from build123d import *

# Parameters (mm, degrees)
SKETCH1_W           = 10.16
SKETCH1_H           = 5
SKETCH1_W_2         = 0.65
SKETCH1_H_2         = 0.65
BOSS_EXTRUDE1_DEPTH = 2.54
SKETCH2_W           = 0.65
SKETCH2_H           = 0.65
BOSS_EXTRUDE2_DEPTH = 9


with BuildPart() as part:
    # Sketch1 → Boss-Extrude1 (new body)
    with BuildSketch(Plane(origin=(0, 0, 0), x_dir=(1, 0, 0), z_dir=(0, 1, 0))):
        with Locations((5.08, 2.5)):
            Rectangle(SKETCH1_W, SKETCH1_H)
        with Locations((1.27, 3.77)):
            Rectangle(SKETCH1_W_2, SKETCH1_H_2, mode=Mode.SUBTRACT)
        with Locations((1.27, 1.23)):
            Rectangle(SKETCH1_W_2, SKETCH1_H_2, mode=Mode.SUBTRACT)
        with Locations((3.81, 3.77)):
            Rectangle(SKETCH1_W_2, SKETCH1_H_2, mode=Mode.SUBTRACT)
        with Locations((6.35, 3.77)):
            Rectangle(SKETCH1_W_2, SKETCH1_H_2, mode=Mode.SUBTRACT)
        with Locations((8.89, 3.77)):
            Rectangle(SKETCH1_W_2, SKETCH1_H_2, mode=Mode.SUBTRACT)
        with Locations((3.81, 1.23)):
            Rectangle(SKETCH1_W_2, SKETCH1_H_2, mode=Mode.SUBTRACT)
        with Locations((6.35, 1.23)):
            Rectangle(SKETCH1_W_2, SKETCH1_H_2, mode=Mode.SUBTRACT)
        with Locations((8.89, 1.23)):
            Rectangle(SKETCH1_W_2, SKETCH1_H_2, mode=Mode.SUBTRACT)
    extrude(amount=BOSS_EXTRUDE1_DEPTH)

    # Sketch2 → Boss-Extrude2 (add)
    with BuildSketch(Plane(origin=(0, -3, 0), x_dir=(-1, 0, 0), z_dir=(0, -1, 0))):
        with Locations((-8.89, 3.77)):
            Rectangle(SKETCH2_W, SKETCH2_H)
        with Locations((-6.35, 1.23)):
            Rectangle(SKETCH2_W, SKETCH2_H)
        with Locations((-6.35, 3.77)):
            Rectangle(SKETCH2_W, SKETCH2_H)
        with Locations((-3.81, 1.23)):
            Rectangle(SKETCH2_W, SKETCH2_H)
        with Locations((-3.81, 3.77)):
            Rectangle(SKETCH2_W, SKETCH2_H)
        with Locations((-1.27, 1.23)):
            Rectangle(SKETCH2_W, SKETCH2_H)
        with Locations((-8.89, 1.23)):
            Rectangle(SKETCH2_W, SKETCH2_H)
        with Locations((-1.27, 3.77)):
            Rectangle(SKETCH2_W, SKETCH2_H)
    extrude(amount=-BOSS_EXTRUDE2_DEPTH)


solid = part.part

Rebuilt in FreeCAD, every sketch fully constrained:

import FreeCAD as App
import Part
import Sketcher
from FreeCAD import Vector


def add_polygon(sketch, points):
    """Adds a closed chain of lines whose ends are joined by coincident constraints."""
    first, n = sketch.GeometryCount, len(points)
    for a, b in zip(points, points[1:] + points[:1]):
        sketch.addGeometry(Part.LineSegment(App.Vector(*a, 0), App.Vector(*b, 0)), False)
    for i in range(n):
        sketch.addConstraint(Sketcher.Constraint("Coincident", first + i, 2, first + (i + 1) % n, 1))

doc = App.newDocument("Part")
params = doc.addObject("Spreadsheet::Sheet", "Params")
for row, (alias, value) in enumerate([
    ("sketch1_height", "5 mm"),
    ("sketch1_width", "10.16 mm"),
    ("sketch1_width2", "0.65 mm"),
    ("pad1_length", "2.54 mm"),
    ("sketch2_width", "0.65 mm"),
    ("pad2_length", "9 mm"),
], start=1):
    params.set(f"A{row}", alias)
    params.set(f"B{row}", "=" + value)
    params.setAlias(f"B{row}", alias)

body = doc.addObject("PartDesign::Body", "Body")

# Sketch on XZ plane
sketch1 = body.newObject("Sketcher::SketchObject", "Sketch")
sketch1.AttachmentSupport = (doc.getObject("XZ_Plane"), [""])
sketch1.MapMode = "FlatFace"
add_polygon(sketch1, [(0, -5), (0, 0), (10.2, 0), (10.2, -5)])  # lines 0-3
add_polygon(sketch1, [(1.6, -0.9), (0.9, -0.9), (0.9, -1.6), (1.6, -1.6)])  # lines 4-7
add_polygon(sketch1, [(4.1, -0.9), (3.5, -0.9), (3.5, -1.6), (4.1, -1.6)])  # lines 8-11
add_polygon(sketch1, [(6.7, -0.9), (6, -0.9), (6, -1.6), (6.7, -1.6)])  # lines 12-15
add_polygon(sketch1, [(9.2, -0.9), (8.6, -0.9), (8.6, -1.6), (9.2, -1.6)])  # lines 16-19
add_polygon(sketch1, [(1.6, -3.4), (0.9, -3.4), (0.9, -4.1), (1.6, -4.1)])  # lines 20-23
add_polygon(sketch1, [(4.1, -3.4), (3.5, -3.4), (3.5, -4.1), (4.1, -4.1)])  # lines 24-27
add_polygon(sketch1, [(6.7, -3.4), (6, -3.4), (6, -4.1), (6.7, -4.1)])  # lines 28-31
add_polygon(sketch1, [(9.2, -3.4), (8.6, -3.4), (8.6, -4.1), (9.2, -4.1)])  # lines 32-35
sketch1.addConstraint(Sketcher.Constraint("Vertical", 0))
sketch1.addConstraint(Sketcher.Constraint("Horizontal", 1))
sketch1.addConstraint(Sketcher.Constraint("Vertical", 2))
sketch1.addConstraint(Sketcher.Constraint("Horizontal", 3))
sketch1.addConstraint(Sketcher.Constraint("Horizontal", 4))
sketch1.addConstraint(Sketcher.Constraint("Vertical", 5))
sketch1.addConstraint(Sketcher.Constraint("Horizontal", 6))
sketch1.addConstraint(Sketcher.Constraint("Vertical", 7))
sketch1.addConstraint(Sketcher.Constraint("Horizontal", 8))
sketch1.addConstraint(Sketcher.Constraint("Vertical", 9))
sketch1.addConstraint(Sketcher.Constraint("Horizontal", 10))
sketch1.addConstraint(Sketcher.Constraint("Vertical", 11))
sketch1.addConstraint(Sketcher.Constraint("Horizontal", 12))
sketch1.addConstraint(Sketcher.Constraint("Vertical", 13))
sketch1.addConstraint(Sketcher.Constraint("Horizontal", 14))
sketch1.addConstraint(Sketcher.Constraint("Vertical", 15))
sketch1.addConstraint(Sketcher.Constraint("Horizontal", 16))
sketch1.addConstraint(Sketcher.Constraint("Vertical", 17))
sketch1.addConstraint(Sketcher.Constraint("Horizontal", 18))
sketch1.addConstraint(Sketcher.Constraint("Vertical", 19))
sketch1.addConstraint(Sketcher.Constraint("Horizontal", 20))
sketch1.addConstraint(Sketcher.Constraint("Vertical", 21))
sketch1.addConstraint(Sketcher.Constraint("Horizontal", 22))
sketch1.addConstraint(Sketcher.Constraint("Vertical", 23))
sketch1.addConstraint(Sketcher.Constraint("Horizontal", 24))
sketch1.addConstraint(Sketcher.Constraint("Vertical", 25))
sketch1.addConstraint(Sketcher.Constraint("Horizontal", 26))
sketch1.addConstraint(Sketcher.Constraint("Vertical", 27))
sketch1.addConstraint(Sketcher.Constraint("Horizontal", 28))
sketch1.addConstraint(Sketcher.Constraint("Vertical", 29))
sketch1.addConstraint(Sketcher.Constraint("Horizontal", 30))
sketch1.addConstraint(Sketcher.Constraint("Vertical", 31))
sketch1.addConstraint(Sketcher.Constraint("Horizontal", 32))
sketch1.addConstraint(Sketcher.Constraint("Vertical", 33))
sketch1.addConstraint(Sketcher.Constraint("Horizontal", 34))
sketch1.addConstraint(Sketcher.Constraint("Vertical", 35))
sketch1.addConstraint(Sketcher.Constraint("Coincident", 0, 2, -1, 1))
sketch1.addConstraint(Sketcher.Constraint("Horizontal", 7, 2, 8, 2))
sketch1.addConstraint(Sketcher.Constraint("Horizontal", 6, 2, 9, 2))
sketch1.addConstraint(Sketcher.Constraint("Horizontal", 11, 2, 12, 2))
sketch1.addConstraint(Sketcher.Constraint("Horizontal", 10, 2, 13, 2))
sketch1.addConstraint(Sketcher.Constraint("Horizontal", 15, 2, 16, 2))
sketch1.addConstraint(Sketcher.Constraint("Horizontal", 14, 2, 17, 2))
sketch1.addConstraint(Sketcher.Constraint("Horizontal", 23, 2, 24, 2))
sketch1.addConstraint(Sketcher.Constraint("Horizontal", 22, 2, 25, 2))
sketch1.addConstraint(Sketcher.Constraint("Horizontal", 27, 2, 28, 2))
sketch1.addConstraint(Sketcher.Constraint("Horizontal", 26, 2, 29, 2))
sketch1.addConstraint(Sketcher.Constraint("Horizontal", 31, 2, 32, 2))
sketch1.addConstraint(Sketcher.Constraint("Horizontal", 30, 2, 33, 2))
sketch1.addConstraint(Sketcher.Constraint("Vertical", 5, 2, 20, 2))
sketch1.addConstraint(Sketcher.Constraint("Vertical", 7, 2, 22, 2))
sketch1.addConstraint(Sketcher.Constraint("Vertical", 9, 2, 24, 2))
sketch1.addConstraint(Sketcher.Constraint("Vertical", 11, 2, 26, 2))
sketch1.addConstraint(Sketcher.Constraint("Vertical", 13, 2, 28, 2))
sketch1.addConstraint(Sketcher.Constraint("Vertical", 15, 2, 30, 2))
sketch1.addConstraint(Sketcher.Constraint("Vertical", 17, 2, 32, 2))
sketch1.addConstraint(Sketcher.Constraint("Vertical", 19, 2, 34, 2))
sketch1.addConstraint(Sketcher.Constraint("Equal", 6, 8))
sketch1.addConstraint(Sketcher.Constraint("Equal", 10, 12))
sketch1.addConstraint(Sketcher.Constraint("Equal", 14, 16))
sketch1.addConstraint(Sketcher.Constraint("Equal", 34, 5))
sketch1.addConstraint(Sketcher.Constraint("Equal", 19, 21))
sketch1.addConstraint(Sketcher.Constraint("DistanceY", 0, 1, 0, 2, 5.0))
sketch1.addConstraint(Sketcher.Constraint("DistanceX", 1, 1, 1, 2, 10.16))
sketch1.addConstraint(Sketcher.Constraint("DistanceX", 4, 2, 4, 1, 0.65))
sketch1.addConstraint(Sketcher.Constraint("DistanceX", 7, 2, 8, 2, 1.89))
sketch1.addConstraint(Sketcher.Constraint("DistanceX", 11, 2, 12, 2, 1.89))
sketch1.addConstraint(Sketcher.Constraint("DistanceX", 15, 2, 16, 2, 1.89))
sketch1.addConstraint(Sketcher.Constraint("DistanceY", 20, 2, 5, 2, 1.89))
sketch1.addConstraint(Sketcher.Constraint("DistanceX", -1, 1, 4, 2, 0.945))
sketch1.addConstraint(Sketcher.Constraint("DistanceY", 4, 2, -1, 1, 0.905))
sketch1.setExpression("Constraints[98]", "Params.sketch1_height")
sketch1.setExpression("Constraints[99]", "Params.sketch1_width")
sketch1.setExpression("Constraints[100]", "Params.sketch1_width2")
pad1 = body.newObject("PartDesign::Pad", "Pad")
pad1.Profile = sketch1
pad1.setExpression("Length", "Params.pad1_length")
pad1.Reversed = True

# Sketch on XZ plane
sketch2 = body.newObject("Sketcher::SketchObject", "Sketch001")
sketch2.AttachmentSupport = (doc.getObject("XZ_Plane"), [""])
sketch2.MapMode = "FlatFace"
sketch2.AttachmentOffset = App.Placement(Vector(0, 0, 3), App.Rotation())
add_polygon(sketch2, [(9.2, -4.1), (9.2, -3.4), (8.6, -3.4), (8.6, -4.1)])  # lines 0-3
add_polygon(sketch2, [(6.7, -1.6), (6.7, -0.9), (6, -0.9), (6, -1.6)])  # lines 4-7
add_polygon(sketch2, [(6.7, -4.1), (6.7, -3.4), (6, -3.4), (6, -4.1)])  # lines 8-11
add_polygon(sketch2, [(4.1, -1.6), (4.1, -0.9), (3.5, -0.9), (3.5, -1.6)])  # lines 12-15
add_polygon(sketch2, [(4.1, -4.1), (4.1, -3.4), (3.5, -3.4), (3.5, -4.1)])  # lines 16-19
add_polygon(sketch2, [(1.6, -1.6), (1.6, -0.9), (0.9, -0.9), (0.9, -1.6)])  # lines 20-23
add_polygon(sketch2, [(9.2, -1.6), (9.2, -0.9), (8.6, -0.9), (8.6, -1.6)])  # lines 24-27
add_polygon(sketch2, [(1.6, -4.1), (1.6, -3.4), (0.9, -3.4), (0.9, -4.1)])  # lines 28-31
sketch2.addConstraint(Sketcher.Constraint("Vertical", 0))
sketch2.addConstraint(Sketcher.Constraint("Horizontal", 1))
sketch2.addConstraint(Sketcher.Constraint("Vertical", 2))
sketch2.addConstraint(Sketcher.Constraint("Horizontal", 3))
sketch2.addConstraint(Sketcher.Constraint("Vertical", 4))
sketch2.addConstraint(Sketcher.Constraint("Horizontal", 5))
sketch2.addConstraint(Sketcher.Constraint("Vertical", 6))
sketch2.addConstraint(Sketcher.Constraint("Horizontal", 7))
sketch2.addConstraint(Sketcher.Constraint("Vertical", 8))
sketch2.addConstraint(Sketcher.Constraint("Horizontal", 9))
sketch2.addConstraint(Sketcher.Constraint("Vertical", 10))
sketch2.addConstraint(Sketcher.Constraint("Horizontal", 11))
sketch2.addConstraint(Sketcher.Constraint("Vertical", 12))
sketch2.addConstraint(Sketcher.Constraint("Horizontal", 13))
sketch2.addConstraint(Sketcher.Constraint("Vertical", 14))
sketch2.addConstraint(Sketcher.Constraint("Horizontal", 15))
sketch2.addConstraint(Sketcher.Constraint("Vertical", 16))
sketch2.addConstraint(Sketcher.Constraint("Horizontal", 17))
sketch2.addConstraint(Sketcher.Constraint("Vertical", 18))
sketch2.addConstraint(Sketcher.Constraint("Horizontal", 19))
sketch2.addConstraint(Sketcher.Constraint("Vertical", 20))
sketch2.addConstraint(Sketcher.Constraint("Horizontal", 21))
sketch2.addConstraint(Sketcher.Constraint("Vertical", 22))
sketch2.addConstraint(Sketcher.Constraint("Horizontal", 23))
sketch2.addConstraint(Sketcher.Constraint("Vertical", 24))
sketch2.addConstraint(Sketcher.Constraint("Horizontal", 25))
sketch2.addConstraint(Sketcher.Constraint("Vertical", 26))
sketch2.addConstraint(Sketcher.Constraint("Horizontal", 27))
sketch2.addConstraint(Sketcher.Constraint("Vertical", 28))
sketch2.addConstraint(Sketcher.Constraint("Horizontal", 29))
sketch2.addConstraint(Sketcher.Constraint("Vertical", 30))
sketch2.addConstraint(Sketcher.Constraint("Horizontal", 31))
sketch2.addConstraint(Sketcher.Constraint("Horizontal", 1, 2, 8, 2))
sketch2.addConstraint(Sketcher.Constraint("Horizontal", 3, 2, 10, 2))
sketch2.addConstraint(Sketcher.Constraint("Horizontal", 5, 2, 12, 2))
sketch2.addConstraint(Sketcher.Constraint("Horizontal", 7, 2, 14, 2))
sketch2.addConstraint(Sketcher.Constraint("Horizontal", 9, 2, 16, 2))
sketch2.addConstraint(Sketcher.Constraint("Horizontal", 11, 2, 18, 2))
sketch2.addConstraint(Sketcher.Constraint("Horizontal", 13, 2, 20, 2))
sketch2.addConstraint(Sketcher.Constraint("Horizontal", 15, 2, 22, 2))
sketch2.addConstraint(Sketcher.Constraint("Horizontal", 21, 2, 24, 2))
sketch2.addConstraint(Sketcher.Constraint("Horizontal", 23, 2, 26, 2))
sketch2.addConstraint(Sketcher.Constraint("Horizontal", 17, 2, 28, 2))
sketch2.addConstraint(Sketcher.Constraint("Horizontal", 19, 2, 30, 2))
sketch2.addConstraint(Sketcher.Constraint("Vertical", 7, 2, 8, 2))
sketch2.addConstraint(Sketcher.Constraint("Vertical", 6, 2, 9, 2))
sketch2.addConstraint(Sketcher.Constraint("Vertical", 15, 2, 16, 2))
sketch2.addConstraint(Sketcher.Constraint("Vertical", 14, 2, 17, 2))
sketch2.addConstraint(Sketcher.Constraint("Vertical", 3, 2, 24, 2))
sketch2.addConstraint(Sketcher.Constraint("Vertical", 2, 2, 25, 2))
sketch2.addConstraint(Sketcher.Constraint("Vertical", 23, 2, 28, 2))
sketch2.addConstraint(Sketcher.Constraint("Vertical", 22, 2, 29, 2))
sketch2.addConstraint(Sketcher.Constraint("Equal", 3, 5))
sketch2.addConstraint(Sketcher.Constraint("Equal", 11, 13))
sketch2.addConstraint(Sketcher.Constraint("Equal", 19, 21))
sketch2.addConstraint(Sketcher.Constraint("Equal", 31, 0))
sketch2.addConstraint(Sketcher.Constraint("Equal", 2, 4))
sketch2.addConstraint(Sketcher.Constraint("DistanceX", 1, 2, 1, 1, 0.65))
sketch2.addConstraint(Sketcher.Constraint("DistanceX", 4, 2, 1, 2, 1.89))
sketch2.addConstraint(Sketcher.Constraint("DistanceY", 1, 2, 4, 2, 2.54))
sketch2.addConstraint(Sketcher.Constraint("DistanceX", 12, 2, 5, 2, 1.89))
sketch2.addConstraint(Sketcher.Constraint("DistanceX", 20, 2, 13, 2, 1.89))
sketch2.addConstraint(Sketcher.Constraint("DistanceX", -1, 1, 0, 2, 9.215))
sketch2.addConstraint(Sketcher.Constraint("DistanceY", 0, 2, -1, 1, 3.445))
sketch2.setExpression("Constraints[89]", "Params.sketch2_width")
pad2 = body.newObject("PartDesign::Pad", "Pad001")
pad2.Profile = sketch2
pad2.setExpression("Length", "Params.pad2_length")
pad2.Reversed = True

doc.recompute()
